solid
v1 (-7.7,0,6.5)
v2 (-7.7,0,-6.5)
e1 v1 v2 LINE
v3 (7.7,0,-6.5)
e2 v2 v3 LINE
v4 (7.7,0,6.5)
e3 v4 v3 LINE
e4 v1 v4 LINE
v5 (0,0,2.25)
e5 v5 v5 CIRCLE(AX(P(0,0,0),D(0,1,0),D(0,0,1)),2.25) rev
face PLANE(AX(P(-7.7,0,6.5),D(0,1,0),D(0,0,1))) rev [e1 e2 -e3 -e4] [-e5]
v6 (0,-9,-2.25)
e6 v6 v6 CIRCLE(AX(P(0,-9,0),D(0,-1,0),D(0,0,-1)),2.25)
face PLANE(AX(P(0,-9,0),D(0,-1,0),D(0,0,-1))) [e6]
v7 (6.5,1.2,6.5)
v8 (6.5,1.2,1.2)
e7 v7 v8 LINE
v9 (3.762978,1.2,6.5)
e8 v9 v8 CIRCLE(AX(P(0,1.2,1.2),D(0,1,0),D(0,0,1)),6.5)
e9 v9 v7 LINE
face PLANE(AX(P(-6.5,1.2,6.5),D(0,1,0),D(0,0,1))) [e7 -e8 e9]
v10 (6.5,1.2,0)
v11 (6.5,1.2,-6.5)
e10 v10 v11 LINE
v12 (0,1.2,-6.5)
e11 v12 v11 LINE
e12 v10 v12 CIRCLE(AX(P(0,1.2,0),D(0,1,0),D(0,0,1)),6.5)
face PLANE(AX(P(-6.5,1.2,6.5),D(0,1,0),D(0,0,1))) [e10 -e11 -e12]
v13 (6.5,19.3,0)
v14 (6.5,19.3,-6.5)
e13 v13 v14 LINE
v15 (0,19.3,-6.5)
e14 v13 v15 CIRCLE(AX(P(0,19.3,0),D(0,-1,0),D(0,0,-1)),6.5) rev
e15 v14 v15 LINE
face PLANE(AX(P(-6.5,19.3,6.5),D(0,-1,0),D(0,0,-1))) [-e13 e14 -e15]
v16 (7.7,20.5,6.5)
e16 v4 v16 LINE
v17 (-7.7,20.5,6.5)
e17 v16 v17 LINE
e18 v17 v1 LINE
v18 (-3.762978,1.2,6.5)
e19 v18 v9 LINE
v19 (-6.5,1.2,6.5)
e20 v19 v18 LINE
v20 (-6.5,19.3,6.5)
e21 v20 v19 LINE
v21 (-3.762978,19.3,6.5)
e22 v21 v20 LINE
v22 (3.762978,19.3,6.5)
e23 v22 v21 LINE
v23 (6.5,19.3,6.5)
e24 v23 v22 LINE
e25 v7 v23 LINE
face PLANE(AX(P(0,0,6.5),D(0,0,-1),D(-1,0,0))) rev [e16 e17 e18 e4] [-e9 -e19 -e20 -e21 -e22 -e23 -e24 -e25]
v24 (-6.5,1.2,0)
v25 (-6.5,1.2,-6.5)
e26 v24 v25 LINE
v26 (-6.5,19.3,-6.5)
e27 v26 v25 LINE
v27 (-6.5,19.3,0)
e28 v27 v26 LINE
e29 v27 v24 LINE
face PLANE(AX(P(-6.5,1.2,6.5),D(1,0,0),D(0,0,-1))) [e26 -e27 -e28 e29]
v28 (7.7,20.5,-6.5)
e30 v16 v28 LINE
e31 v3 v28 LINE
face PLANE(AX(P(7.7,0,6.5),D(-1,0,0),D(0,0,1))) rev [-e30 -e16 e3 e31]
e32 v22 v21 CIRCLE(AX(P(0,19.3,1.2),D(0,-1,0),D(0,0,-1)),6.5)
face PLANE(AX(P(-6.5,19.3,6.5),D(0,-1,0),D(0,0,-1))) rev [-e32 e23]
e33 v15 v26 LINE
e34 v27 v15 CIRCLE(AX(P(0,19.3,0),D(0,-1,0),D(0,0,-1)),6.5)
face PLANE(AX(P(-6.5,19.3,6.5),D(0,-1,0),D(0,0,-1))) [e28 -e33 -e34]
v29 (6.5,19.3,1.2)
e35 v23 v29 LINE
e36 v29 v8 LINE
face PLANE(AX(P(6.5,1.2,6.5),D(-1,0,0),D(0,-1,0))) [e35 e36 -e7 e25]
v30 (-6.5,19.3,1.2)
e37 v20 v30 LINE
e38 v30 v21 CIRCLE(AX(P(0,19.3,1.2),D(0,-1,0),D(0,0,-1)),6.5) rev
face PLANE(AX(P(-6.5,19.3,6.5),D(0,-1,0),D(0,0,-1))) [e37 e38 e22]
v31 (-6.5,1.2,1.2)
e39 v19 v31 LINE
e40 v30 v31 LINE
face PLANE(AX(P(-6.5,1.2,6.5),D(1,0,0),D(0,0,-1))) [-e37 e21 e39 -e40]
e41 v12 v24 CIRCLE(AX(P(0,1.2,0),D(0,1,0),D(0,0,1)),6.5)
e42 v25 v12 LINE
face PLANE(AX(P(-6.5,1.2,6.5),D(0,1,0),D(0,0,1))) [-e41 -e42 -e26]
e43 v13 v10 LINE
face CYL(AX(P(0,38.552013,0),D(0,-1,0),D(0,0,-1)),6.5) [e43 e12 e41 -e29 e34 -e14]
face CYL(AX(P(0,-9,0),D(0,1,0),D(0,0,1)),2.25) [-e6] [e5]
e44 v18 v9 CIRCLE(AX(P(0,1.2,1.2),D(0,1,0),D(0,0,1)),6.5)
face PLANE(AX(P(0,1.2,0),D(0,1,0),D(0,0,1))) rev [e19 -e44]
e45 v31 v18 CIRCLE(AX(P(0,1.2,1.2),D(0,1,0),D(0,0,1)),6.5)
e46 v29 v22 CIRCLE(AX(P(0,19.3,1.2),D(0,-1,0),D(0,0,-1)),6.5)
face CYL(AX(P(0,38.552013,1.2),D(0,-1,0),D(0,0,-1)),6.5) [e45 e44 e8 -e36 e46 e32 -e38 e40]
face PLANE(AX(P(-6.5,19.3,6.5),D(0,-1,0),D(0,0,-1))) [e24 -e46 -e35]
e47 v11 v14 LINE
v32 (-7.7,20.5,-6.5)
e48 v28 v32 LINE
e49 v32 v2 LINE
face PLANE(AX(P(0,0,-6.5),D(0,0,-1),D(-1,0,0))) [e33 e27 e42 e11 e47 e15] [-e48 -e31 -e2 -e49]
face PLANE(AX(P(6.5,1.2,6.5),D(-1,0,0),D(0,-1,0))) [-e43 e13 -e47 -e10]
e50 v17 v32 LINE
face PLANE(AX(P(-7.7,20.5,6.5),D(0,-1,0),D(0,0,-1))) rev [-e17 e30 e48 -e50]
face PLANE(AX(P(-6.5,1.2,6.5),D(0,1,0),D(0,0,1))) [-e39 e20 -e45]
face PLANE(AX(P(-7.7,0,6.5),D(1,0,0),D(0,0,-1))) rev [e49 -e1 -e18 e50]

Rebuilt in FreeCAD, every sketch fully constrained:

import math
import FreeCAD as App
import Part
import Sketcher


def add_polygon(sketch, points):
    """Adds a closed chain of lines whose ends are joined by coincident constraints."""
    first, n = sketch.GeometryCount, len(points)
    for a, b in zip(points, points[1:] + points[:1]):
        sketch.addGeometry(Part.LineSegment(App.Vector(*a, 0), App.Vector(*b, 0)), False)
    for i in range(n):
        sketch.addConstraint(Sketcher.Constraint("Coincident", first + i, 2, first + (i + 1) % n, 1))

doc = App.newDocument("Part")
body = doc.addObject("PartDesign::Body", "Body")

# Sketch on XY plane
sketch1 = body.newObject("Sketcher::SketchObject", "Sketch")
sketch1.AttachmentSupport = (doc.getObject("XY_Plane"), [""])
sketch1.MapMode = "FlatFace"
add_polygon(sketch1, [(-8, 20), (-8, 0), (8, 0), (8, 20)])  # lines 0-3
add_polygon(sketch1, [(6, 1), (-6, 1), (-6, 19), (6, 19)])  # lines 4-7
sketch1.addConstraint(Sketcher.Constraint("Vertical", 0))
sketch1.addConstraint(Sketcher.Constraint("Horizontal", 1))
sketch1.addConstraint(Sketcher.Constraint("Vertical", 2))
sketch1.addConstraint(Sketcher.Constraint("Horizontal", 3))
sketch1.addConstraint(Sketcher.Constraint("Horizontal", 4))
sketch1.addConstraint(Sketcher.Constraint("Vertical", 5))
sketch1.addConstraint(Sketcher.Constraint("Horizontal", 6))
sketch1.addConstraint(Sketcher.Constraint("Vertical", 7))
sketch1.addConstraint(Sketcher.Constraint("Symmetric", 0, 2, 1, 2, -1, 1))
sketch1.addConstraint(Sketcher.Constraint("DistanceX", 4, 2, 4, 1, 13.0))
sketch1.addConstraint(Sketcher.Constraint("DistanceX", 1, 1, 1, 2, 15.4))
sketch1.addConstraint(Sketcher.Constraint("DistanceY", 0, 2, 0, 1, 20.5))
sketch1.addConstraint(Sketcher.Constraint("DistanceY", 5, 1, 5, 2, 18.1))
sketch1.addConstraint(Sketcher.Constraint("DistanceX", 4, 2, -1, 1, 6.5))
sketch1.addConstraint(Sketcher.Constraint("DistanceY", -1, 1, 4, 2, 1.2))
pad1 = body.newObject("PartDesign::Pad", "Pad")
pad1.Profile = sketch1
pad1.Length = 13
pad1.Midplane = True

# Sketch on XZ plane
sketch2 = body.newObject("Sketcher::SketchObject", "Sketch001")
sketch2.AttachmentSupport = (doc.getObject("XZ_Plane"), [""])
sketch2.MapMode = "FlatFace"
sketch2.addGeometry(Part.Circle(App.Vector(0, 0, 0), App.Vector(0, 0, 1), 2.2), False)
sketch2.addConstraint(Sketcher.Constraint("Coincident", 0, 3, -1, 1))
sketch2.addConstraint(Sketcher.Constraint("Diameter", 0, 4.5))
pad2 = body.newObject("PartDesign::Pad", "Pad001")
pad2.Profile = sketch2
pad2.Length = 9

# Sketch on XZ plane
sketch3 = body.newObject("Sketcher::SketchObject", "Sketch002")
sketch3.AttachmentSupport = (doc.getObject("XZ_Plane"), [""])
sketch3.MapMode = "FlatFace"
sketch3.AttachmentOffset = App.Placement(App.Vector(0, 0, -1.2), App.Rotation())
sketch3.addGeometry(Part.LineSegment(App.Vector(6.5, 1.2, 0), App.Vector(6.5, 0, 0)), False)
sketch3.addGeometry(Part.ArcOfCircle(Part.Circle(App.Vector(0, 0, 0), App.Vector(0, 0, 1), 6.5), math.radians(180), math.radians(360)), False)
sketch3.addGeometry(Part.LineSegment(App.Vector(-6.5, 0, 0), App.Vector(-6.5, 1.2, 0)), False)
sketch3.addGeometry(Part.ArcOfCircle(Part.Circle(App.Vector(0, 1.2, 0), App.Vector(0, 0, 1), 6.5), math.radians(0), math.radians(180)), False)
sketch3.addConstraint(Sketcher.Constraint("Tangent", 0, 2, 1, 2))
sketch3.addConstraint(Sketcher.Constraint("Tangent", 1, 1, 2, 1))
sketch3.addConstraint(Sketcher.Constraint("Tangent", 2, 2, 3, 2))
sketch3.addConstraint(Sketcher.Constraint("Tangent", 3, 1, 0, 1))
sketch3.addConstraint(Sketcher.Constraint("Vertical", 0))
sketch3.addConstraint(Sketcher.Constraint("Vertical", 2))
sketch3.addConstraint(Sketcher.Constraint("Coincident", 1, 3, -1, 1))
sketch3.addConstraint(Sketcher.Constraint("Radius", 1, 6.5))
sketch3.addConstraint(Sketcher.Constraint("DistanceY", 0, 2, 0, 1, 1.2))
pad3 = body.newObject("PartDesign::Pad", "Pad002")
pad3.Profile = sketch3
pad3.Length = 18.1
pad3.Reversed = True

doc.recompute()
